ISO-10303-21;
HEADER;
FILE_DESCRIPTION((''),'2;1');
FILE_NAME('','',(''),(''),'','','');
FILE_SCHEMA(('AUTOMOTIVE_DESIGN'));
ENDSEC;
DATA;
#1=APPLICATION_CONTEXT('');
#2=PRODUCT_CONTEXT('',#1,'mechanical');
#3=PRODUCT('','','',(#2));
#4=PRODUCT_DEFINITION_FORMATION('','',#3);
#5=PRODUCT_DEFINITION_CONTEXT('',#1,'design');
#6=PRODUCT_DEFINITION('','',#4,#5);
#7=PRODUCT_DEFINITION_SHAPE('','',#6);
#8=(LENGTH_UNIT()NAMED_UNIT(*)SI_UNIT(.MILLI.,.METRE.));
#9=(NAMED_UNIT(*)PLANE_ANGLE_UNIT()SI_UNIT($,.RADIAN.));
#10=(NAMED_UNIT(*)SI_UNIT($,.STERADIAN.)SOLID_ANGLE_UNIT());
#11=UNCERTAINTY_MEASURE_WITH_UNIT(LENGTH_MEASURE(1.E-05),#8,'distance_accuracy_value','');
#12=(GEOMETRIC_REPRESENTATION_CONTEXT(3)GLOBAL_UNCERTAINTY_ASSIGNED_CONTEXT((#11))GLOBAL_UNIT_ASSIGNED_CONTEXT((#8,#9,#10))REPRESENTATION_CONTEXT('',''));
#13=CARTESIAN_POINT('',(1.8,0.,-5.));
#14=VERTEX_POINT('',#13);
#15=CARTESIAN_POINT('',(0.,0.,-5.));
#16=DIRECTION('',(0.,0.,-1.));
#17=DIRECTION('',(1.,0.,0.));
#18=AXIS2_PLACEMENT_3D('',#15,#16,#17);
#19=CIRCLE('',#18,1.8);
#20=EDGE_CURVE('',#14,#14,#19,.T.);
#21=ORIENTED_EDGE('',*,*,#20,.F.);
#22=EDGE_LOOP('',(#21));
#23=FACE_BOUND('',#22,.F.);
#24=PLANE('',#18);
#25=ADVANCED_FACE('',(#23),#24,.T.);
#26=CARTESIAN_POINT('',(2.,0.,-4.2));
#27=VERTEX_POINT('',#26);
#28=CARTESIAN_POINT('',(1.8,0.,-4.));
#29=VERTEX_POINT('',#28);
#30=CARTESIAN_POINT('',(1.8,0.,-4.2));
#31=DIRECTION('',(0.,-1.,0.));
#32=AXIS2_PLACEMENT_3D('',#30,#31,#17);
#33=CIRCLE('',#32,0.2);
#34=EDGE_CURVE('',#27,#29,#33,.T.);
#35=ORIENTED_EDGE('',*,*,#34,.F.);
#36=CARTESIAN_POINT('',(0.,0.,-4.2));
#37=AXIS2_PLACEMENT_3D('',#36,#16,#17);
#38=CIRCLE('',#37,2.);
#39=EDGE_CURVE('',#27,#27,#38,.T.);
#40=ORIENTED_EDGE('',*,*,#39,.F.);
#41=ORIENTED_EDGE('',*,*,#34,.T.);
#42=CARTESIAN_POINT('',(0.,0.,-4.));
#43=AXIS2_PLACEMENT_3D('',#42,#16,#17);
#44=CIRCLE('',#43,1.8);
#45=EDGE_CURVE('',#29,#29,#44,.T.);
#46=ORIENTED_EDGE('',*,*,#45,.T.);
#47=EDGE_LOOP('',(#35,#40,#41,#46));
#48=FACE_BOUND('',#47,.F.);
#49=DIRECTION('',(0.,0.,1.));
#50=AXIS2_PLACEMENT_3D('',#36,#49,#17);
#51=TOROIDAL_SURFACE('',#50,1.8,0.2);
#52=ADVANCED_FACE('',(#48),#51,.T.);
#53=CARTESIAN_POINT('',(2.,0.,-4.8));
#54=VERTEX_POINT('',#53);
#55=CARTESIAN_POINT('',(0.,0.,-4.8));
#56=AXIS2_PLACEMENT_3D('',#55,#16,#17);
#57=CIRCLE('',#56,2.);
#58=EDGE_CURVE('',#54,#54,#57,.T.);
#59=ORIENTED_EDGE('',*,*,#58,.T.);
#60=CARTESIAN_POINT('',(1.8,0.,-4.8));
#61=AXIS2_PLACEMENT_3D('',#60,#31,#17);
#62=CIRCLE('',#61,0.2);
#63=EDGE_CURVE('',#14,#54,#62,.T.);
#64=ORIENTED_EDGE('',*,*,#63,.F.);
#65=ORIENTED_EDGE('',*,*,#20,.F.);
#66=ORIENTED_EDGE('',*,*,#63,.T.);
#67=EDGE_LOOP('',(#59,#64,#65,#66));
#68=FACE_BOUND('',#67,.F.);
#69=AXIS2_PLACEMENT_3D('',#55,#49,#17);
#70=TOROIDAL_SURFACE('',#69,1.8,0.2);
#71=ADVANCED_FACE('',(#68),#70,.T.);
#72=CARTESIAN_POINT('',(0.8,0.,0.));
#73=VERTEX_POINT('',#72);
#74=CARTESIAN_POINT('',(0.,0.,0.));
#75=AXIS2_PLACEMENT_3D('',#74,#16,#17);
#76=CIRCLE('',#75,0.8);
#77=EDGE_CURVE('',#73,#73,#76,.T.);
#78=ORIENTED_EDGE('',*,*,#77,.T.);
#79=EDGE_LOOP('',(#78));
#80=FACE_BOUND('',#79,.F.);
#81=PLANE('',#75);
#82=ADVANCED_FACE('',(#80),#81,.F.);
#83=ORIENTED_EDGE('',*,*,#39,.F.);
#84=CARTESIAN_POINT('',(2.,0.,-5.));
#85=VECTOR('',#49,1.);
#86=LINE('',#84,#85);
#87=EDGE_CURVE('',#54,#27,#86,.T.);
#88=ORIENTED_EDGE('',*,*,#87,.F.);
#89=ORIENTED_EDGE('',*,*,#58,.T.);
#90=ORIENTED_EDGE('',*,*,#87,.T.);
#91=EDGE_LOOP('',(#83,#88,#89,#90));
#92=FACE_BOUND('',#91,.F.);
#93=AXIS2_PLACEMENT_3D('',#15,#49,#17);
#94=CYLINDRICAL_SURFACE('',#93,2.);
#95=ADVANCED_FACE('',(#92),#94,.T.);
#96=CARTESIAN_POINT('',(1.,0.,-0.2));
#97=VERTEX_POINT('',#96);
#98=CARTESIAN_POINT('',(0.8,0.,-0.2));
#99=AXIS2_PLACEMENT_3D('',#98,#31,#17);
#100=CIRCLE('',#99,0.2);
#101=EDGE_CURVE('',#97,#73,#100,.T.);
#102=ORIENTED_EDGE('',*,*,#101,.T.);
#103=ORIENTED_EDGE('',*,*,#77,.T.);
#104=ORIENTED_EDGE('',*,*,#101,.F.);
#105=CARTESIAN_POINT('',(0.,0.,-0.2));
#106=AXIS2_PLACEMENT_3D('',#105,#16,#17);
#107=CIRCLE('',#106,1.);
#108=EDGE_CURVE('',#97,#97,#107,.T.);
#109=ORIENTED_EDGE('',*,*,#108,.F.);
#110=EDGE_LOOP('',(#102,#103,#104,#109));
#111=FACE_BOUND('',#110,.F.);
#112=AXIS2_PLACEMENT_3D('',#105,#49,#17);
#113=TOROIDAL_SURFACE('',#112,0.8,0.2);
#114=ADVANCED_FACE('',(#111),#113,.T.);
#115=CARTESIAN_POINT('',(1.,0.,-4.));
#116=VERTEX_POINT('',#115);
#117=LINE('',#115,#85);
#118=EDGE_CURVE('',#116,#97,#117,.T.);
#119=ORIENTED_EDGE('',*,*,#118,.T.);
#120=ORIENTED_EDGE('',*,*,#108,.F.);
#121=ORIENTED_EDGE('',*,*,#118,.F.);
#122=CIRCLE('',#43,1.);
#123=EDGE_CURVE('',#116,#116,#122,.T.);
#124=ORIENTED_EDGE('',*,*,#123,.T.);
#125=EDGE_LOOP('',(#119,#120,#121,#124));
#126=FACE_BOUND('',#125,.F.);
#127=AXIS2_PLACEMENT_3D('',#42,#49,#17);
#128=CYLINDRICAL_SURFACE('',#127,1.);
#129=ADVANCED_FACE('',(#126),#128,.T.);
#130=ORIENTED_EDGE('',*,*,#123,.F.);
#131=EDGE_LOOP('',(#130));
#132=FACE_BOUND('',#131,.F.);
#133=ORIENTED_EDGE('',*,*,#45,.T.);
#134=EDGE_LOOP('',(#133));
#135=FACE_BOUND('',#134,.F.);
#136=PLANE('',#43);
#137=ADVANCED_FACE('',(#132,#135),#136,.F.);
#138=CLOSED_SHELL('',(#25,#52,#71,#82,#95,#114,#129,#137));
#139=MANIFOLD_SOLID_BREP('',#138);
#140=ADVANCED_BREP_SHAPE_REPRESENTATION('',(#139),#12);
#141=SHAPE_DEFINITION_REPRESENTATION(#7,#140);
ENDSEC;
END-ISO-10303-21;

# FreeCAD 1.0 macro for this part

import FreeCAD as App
import Part
import Sketcher
Q = App.Units.Quantity


def edges_at(feature, points):
    """Names of the edges that pass closest to the given points."""
    edges = feature.Shape.Edges
    near = lambda p: min(range(len(edges)), key=lambda i: edges[i].distToShape(Part.Vertex(*p))[0])
    return sorted({f"Edge{near(p) + 1}" for p in points})


def add_polygon(sketch, points):
    """Adds a closed chain of lines whose ends are joined by coincident constraints."""
    first, n = sketch.GeometryCount, len(points)
    for a, b in zip(points, points[1:] + points[:1]):
        sketch.addGeometry(Part.LineSegment(App.Vector(*a, 0), App.Vector(*b, 0)), False)
    for i in range(n):
        sketch.addConstraint(Sketcher.Constraint("Coincident", first + i, 2, first + (i + 1) % n, 1))

doc = App.newDocument("Part")
body = doc.addObject("PartDesign::Body", "Body")

sketch1 = body.newObject("Sketcher::SketchObject", "Sketch")
sketch1.AttachmentSupport = (doc.getObject("XZ_Plane"), [""])
sketch1.MapMode = "FlatFace"
add_polygon(sketch1, [(0, -5), (0, 0), (1, 0), (1, -4), (2, -4), (2, -5)])
sketch1.addConstraint([
    Sketcher.Constraint("Vertical", 0),
    Sketcher.Constraint("Horizontal", 1),
    Sketcher.Constraint("Vertical", 2),
    Sketcher.Constraint("Horizontal", 3),
    Sketcher.Constraint("Vertical", 4),
    Sketcher.Constraint("Horizontal", 5),
    Sketcher.Constraint("Coincident", 0, 2, -1, 1),
    Sketcher.Constraint("Equal", 1, 3),
    Sketcher.Constraint("Equal", 3, 4),
    Sketcher.Constraint("DistanceX", 1, 1, 1, 2, Q("1 mm")),
    Sketcher.Constraint("DistanceY", 2, 2, 2, 1, Q("4 mm")),
])
revolution = body.newObject("PartDesign::Revolution", "Revolution")
revolution.Profile = sketch1
revolution.ReferenceAxis = (sketch1, ["V_Axis"])
revolution.Angle = 360
doc.recompute()

fillet = body.newObject("PartDesign::Fillet", "Fillet")
fillet.Base = (revolution, edges_at(revolution, [(-2, 0, -4), (-2, 0, -5), (-1, 0, 0)]))
fillet.Radius = 0.2

doc.recompute()
